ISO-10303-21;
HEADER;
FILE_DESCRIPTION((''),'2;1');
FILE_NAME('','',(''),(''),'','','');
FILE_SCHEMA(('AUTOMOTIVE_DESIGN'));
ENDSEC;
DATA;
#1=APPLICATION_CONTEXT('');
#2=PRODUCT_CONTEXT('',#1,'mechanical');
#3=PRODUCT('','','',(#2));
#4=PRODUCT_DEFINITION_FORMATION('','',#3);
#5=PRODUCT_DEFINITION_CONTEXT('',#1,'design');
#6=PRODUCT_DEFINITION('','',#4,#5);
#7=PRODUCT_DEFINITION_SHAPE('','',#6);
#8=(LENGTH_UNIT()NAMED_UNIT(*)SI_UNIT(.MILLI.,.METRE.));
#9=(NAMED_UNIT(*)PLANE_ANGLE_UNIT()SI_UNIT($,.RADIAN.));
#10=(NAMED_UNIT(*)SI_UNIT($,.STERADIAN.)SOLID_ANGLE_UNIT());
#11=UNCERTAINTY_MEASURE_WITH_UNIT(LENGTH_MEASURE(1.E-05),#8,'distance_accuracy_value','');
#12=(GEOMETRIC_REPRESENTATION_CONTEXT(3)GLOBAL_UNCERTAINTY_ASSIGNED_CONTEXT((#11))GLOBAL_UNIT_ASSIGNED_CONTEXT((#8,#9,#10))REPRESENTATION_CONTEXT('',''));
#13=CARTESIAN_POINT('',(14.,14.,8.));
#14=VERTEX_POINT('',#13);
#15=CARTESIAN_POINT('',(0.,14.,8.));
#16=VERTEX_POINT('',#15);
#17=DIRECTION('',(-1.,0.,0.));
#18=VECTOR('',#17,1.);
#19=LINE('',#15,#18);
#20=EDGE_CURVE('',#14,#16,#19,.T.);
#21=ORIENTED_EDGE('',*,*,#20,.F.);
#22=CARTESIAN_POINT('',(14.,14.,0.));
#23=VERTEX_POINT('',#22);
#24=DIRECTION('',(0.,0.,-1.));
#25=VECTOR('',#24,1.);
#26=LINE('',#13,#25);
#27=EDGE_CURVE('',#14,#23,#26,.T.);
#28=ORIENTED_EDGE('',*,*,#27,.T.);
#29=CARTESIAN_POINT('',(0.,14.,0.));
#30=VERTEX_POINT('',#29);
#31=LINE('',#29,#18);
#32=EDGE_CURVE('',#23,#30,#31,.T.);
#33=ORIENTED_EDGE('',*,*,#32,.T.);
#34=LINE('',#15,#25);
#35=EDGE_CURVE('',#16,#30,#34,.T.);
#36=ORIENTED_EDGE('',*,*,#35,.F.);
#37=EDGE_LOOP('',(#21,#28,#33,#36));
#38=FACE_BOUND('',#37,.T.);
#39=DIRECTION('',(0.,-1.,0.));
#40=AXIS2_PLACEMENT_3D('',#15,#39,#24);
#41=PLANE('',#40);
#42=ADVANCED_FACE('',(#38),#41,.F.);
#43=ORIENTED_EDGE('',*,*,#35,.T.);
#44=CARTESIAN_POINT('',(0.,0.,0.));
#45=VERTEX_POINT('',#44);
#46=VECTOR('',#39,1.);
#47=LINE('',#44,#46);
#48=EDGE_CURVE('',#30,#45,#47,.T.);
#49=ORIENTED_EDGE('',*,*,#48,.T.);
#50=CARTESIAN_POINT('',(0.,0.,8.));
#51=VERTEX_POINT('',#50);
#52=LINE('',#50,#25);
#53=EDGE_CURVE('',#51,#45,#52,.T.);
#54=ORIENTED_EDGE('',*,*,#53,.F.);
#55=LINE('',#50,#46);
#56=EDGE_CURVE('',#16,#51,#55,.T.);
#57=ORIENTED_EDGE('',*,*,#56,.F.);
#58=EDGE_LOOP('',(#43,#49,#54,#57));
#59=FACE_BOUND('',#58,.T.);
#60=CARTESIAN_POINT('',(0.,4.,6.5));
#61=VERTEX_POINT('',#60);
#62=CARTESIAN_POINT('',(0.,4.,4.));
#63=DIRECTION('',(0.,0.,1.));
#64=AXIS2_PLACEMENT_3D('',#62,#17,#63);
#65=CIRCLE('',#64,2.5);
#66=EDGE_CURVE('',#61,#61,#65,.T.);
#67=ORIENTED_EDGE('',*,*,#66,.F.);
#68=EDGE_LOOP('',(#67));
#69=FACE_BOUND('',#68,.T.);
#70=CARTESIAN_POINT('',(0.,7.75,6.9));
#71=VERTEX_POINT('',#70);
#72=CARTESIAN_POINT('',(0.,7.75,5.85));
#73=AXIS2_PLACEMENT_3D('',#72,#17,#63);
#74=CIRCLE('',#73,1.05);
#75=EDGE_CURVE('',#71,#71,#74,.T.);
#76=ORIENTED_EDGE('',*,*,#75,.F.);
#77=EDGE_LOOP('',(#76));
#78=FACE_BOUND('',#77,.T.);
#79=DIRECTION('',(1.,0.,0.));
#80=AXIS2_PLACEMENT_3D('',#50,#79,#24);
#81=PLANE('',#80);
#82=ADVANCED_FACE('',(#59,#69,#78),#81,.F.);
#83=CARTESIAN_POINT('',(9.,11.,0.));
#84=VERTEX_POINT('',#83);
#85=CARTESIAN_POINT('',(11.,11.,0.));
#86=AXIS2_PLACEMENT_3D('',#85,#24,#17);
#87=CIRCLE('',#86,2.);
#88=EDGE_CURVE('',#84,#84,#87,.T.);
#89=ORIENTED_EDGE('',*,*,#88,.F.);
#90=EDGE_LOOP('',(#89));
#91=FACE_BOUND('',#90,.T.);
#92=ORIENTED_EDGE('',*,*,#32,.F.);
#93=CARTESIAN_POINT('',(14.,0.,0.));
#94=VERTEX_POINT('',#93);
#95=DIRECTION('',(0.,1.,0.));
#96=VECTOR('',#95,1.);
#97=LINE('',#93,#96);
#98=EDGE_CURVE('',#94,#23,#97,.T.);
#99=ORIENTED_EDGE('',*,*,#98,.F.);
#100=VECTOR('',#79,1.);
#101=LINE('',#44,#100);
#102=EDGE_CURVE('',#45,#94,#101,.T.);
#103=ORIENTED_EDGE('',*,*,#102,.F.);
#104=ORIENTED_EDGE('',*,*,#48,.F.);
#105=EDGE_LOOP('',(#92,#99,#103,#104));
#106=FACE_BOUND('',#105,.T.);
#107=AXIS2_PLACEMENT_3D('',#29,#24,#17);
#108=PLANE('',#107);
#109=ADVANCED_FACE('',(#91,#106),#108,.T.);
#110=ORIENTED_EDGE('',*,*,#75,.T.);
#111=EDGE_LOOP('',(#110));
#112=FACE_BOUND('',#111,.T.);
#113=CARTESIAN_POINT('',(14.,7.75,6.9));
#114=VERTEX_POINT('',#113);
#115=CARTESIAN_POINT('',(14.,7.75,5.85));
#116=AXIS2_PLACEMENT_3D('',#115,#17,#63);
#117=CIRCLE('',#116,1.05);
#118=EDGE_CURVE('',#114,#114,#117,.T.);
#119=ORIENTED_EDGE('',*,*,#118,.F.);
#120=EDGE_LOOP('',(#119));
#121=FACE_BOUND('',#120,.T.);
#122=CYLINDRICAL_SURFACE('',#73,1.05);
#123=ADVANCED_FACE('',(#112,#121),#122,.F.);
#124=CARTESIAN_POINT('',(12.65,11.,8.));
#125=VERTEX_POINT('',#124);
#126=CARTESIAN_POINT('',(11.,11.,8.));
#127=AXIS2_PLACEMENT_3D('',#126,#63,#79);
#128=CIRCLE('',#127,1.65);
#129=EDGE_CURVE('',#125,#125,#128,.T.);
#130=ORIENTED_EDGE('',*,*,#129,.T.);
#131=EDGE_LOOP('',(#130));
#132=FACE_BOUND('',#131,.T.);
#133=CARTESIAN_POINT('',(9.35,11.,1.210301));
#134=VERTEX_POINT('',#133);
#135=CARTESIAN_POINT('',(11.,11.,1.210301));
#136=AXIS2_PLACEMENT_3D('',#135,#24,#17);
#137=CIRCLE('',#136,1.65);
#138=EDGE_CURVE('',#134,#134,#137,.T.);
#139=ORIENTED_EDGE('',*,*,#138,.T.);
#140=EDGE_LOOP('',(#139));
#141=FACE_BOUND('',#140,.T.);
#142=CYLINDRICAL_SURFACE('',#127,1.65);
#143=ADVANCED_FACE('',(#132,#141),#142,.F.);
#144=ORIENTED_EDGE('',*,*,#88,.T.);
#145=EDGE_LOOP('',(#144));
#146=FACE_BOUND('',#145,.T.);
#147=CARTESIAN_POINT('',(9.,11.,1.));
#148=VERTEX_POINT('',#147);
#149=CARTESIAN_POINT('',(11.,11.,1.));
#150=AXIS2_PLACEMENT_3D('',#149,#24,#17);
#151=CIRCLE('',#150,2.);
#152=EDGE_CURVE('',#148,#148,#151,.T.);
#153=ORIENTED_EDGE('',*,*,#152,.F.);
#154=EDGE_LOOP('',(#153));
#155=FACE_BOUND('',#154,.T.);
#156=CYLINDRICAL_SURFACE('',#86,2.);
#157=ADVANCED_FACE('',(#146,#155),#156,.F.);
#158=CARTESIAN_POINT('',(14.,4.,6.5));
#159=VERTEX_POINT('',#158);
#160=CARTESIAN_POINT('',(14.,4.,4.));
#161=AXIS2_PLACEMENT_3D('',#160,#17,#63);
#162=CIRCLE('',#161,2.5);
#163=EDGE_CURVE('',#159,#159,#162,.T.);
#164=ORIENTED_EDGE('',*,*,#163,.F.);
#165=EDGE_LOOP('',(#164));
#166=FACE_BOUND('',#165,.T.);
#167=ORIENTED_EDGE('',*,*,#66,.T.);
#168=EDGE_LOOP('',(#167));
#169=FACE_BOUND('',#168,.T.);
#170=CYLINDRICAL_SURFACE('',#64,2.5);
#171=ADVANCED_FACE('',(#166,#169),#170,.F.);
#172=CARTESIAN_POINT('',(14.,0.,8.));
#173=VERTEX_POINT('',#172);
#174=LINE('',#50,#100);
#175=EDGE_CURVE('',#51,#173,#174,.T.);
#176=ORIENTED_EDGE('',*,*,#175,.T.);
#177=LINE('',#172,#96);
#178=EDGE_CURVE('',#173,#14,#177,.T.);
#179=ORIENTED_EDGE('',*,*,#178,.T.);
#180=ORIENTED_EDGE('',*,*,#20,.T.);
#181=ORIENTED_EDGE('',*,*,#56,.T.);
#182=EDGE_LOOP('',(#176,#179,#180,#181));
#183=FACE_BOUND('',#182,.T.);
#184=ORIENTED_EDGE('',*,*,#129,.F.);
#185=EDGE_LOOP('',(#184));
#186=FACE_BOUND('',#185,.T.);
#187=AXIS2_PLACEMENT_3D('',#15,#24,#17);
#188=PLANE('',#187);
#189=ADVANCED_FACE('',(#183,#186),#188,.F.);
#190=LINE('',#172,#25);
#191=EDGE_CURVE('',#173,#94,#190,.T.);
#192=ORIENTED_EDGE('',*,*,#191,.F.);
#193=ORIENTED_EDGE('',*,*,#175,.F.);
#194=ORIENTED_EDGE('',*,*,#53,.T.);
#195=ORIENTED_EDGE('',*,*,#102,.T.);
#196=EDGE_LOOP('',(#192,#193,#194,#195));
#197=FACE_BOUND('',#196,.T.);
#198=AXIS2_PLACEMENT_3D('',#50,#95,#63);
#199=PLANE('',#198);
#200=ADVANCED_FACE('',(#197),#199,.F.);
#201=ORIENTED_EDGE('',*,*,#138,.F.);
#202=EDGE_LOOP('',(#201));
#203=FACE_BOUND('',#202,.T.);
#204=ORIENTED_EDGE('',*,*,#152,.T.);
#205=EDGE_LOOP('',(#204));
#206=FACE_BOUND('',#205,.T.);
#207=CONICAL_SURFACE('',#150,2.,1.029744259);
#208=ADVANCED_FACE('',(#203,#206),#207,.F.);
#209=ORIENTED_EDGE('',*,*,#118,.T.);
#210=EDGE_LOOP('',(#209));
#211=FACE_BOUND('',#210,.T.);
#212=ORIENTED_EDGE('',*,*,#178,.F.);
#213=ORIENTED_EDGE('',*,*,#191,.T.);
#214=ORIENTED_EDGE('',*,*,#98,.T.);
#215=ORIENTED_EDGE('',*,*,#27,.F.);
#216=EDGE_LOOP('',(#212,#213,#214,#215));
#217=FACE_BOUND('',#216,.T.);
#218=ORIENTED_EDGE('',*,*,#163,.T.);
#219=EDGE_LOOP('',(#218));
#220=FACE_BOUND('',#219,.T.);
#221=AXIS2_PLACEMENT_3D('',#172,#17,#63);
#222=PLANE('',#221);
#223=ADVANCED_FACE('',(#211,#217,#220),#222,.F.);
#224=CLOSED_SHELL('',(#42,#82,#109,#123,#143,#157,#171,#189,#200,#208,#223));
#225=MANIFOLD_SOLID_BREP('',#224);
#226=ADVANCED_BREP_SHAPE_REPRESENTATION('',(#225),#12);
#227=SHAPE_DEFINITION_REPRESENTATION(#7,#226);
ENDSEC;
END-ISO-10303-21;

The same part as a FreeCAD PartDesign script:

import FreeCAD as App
import Part
import Sketcher
Q = App.Units.Quantity

doc = App.newDocument("Part")
body = doc.addObject("PartDesign::Body", "Body")

# Sketch on XY plane
sketch1 = body.newObject("Sketcher::SketchObject", "Sketch")
sketch1.AttachmentSupport = (doc.getObject("XY_Plane"), [""])
sketch1.MapMode = "FlatFace"
sketch1.addGeometry([
    Part.LineSegment(App.Vector(0, 14, 0), App.Vector(0, 0, 0)),
    Part.LineSegment(App.Vector(0, 0, 0), App.Vector(14, 0, 0)),
    Part.LineSegment(App.Vector(14, 0, 0), App.Vector(14, 14, 0)),
    Part.LineSegment(App.Vector(14, 14, 0), App.Vector(0, 14, 0)),
], False)
sketch1.addConstraint([
    Sketcher.Constraint("Coincident", 0, 2, 1, 1),
    Sketcher.Constraint("Coincident", 1, 2, 2, 1),
    Sketcher.Constraint("Coincident", 2, 2, 3, 1),
    Sketcher.Constraint("Coincident", 3, 2, 0, 1),
    Sketcher.Constraint("Vertical", 0),
    Sketcher.Constraint("Horizontal", 1),
    Sketcher.Constraint("Vertical", 2),
    Sketcher.Constraint("Horizontal", 3),
    Sketcher.Constraint("Coincident", 0, 2, -1, 1),
    Sketcher.Constraint("Equal", 3, 0),
    Sketcher.Constraint("DistanceX", 1, 1, 1, 2, Q("14 mm")),
])
pad1 = body.newObject("PartDesign::Pad", "Pad")
pad1.Profile = sketch1
pad1.Length = 8

# Sketch on XY plane
sketch2 = body.newObject("Sketcher::SketchObject", "Sketch001")
sketch2.AttachmentSupport = (doc.getObject("XY_Plane"), [""])
sketch2.MapMode = "FlatFace"
sketch2.AttachmentOffset = App.Placement(App.Vector(0, 0, 8), App.Rotation())
sketch2.addGeometry(Part.Circle(App.Vector(11, 11, 0), App.Vector(0, 0, 1), 1.6), False)
sketch2.addConstraint([
    Sketcher.Constraint("Diameter", 0, Q("3.3 mm")),
    Sketcher.Constraint("DistanceX", -1, 1, 0, 3, Q("11 mm")),
    Sketcher.Constraint("DistanceY", -1, 1, 0, 3, Q("11 mm")),
])
doc.recompute()
hole = body.newObject("PartDesign::Hole", "Hole")
hole.Profile = sketch2
hole.ThreadType = "None"
hole.Diameter = 3.3
hole.DepthType = "ThroughAll"

# Sketch on YZ plane
sketch3 = body.newObject("Sketcher::SketchObject", "Sketch002")
sketch3.AttachmentSupport = (doc.getObject("YZ_Plane"), [""])
sketch3.MapMode = "FlatFace"
sketch3.addGeometry(Part.Circle(App.Vector(4, 4, 0), App.Vector(0, 0, 1), 2.5), False)
sketch3.addConstraint([
    Sketcher.Constraint("Diameter", 0, Q("5 mm")),
    Sketcher.Constraint("DistanceX", -1, 1, 0, 3, Q("4 mm")),
    Sketcher.Constraint("DistanceY", -1, 1, 0, 3, Q("4 mm")),
])
doc.recompute()
hole2 = body.newObject("PartDesign::Hole", "Hole001")
hole2.Profile = sketch3
hole2.ThreadType = "None"
hole2.Diameter = 5
hole2.DepthType = "ThroughAll"
hole2.Reversed = True

# Sketch on YZ plane
sketch4 = body.newObject("Sketcher::SketchObject", "Sketch003")
sketch4.AttachmentSupport = (doc.getObject("YZ_Plane"), [""])
sketch4.MapMode = "FlatFace"
sketch4.addGeometry(Part.Circle(App.Vector(7.8, 5.8, 0), App.Vector(0, 0, 1), 1.1), False)
sketch4.addConstraint([
    Sketcher.Constraint("Diameter", 0, Q("2.1 mm")),
    Sketcher.Constraint("DistanceX", -1, 1, 0, 3, Q("7.75 mm")),
    Sketcher.Constraint("DistanceY", -1, 1, 0, 3, Q("5.85 mm")),
])
doc.recompute()
hole3 = body.newObject("PartDesign::Hole", "Hole002")
hole3.Profile = sketch4
hole3.ThreadType = "None"
hole3.Diameter = 2.1
hole3.DepthType = "ThroughAll"
hole3.Reversed = True

# Sketch on XY plane
sketch5 = body.newObject("Sketcher::SketchObject", "Sketch004")
sketch5.AttachmentSupport = (doc.getObject("XY_Plane"), [""])
sketch5.MapMode = "FlatFace"
sketch5.addGeometry(Part.Circle(App.Vector(11, 11, 0), App.Vector(0, 0, 1), 2), False)
sketch5.addConstraint([
    Sketcher.Constraint("Diameter", 0, Q("4 mm")),
    Sketcher.Constraint("DistanceX", -1, 1, 0, 3, Q("11 mm")),
    Sketcher.Constraint("DistanceY", -1, 1, 0, 3, Q("11 mm")),
])
doc.recompute()
hole4 = body.newObject("PartDesign::Hole", "Hole003")
hole4.Profile = sketch5
hole4.ThreadType = "None"
hole4.Diameter = 4
hole4.DepthType = "Dimension"
hole4.Depth = 1
hole4.DrillPoint = "Angled"
hole4.DrillPointAngle = 118
hole4.Reversed = True

doc.recompute()
